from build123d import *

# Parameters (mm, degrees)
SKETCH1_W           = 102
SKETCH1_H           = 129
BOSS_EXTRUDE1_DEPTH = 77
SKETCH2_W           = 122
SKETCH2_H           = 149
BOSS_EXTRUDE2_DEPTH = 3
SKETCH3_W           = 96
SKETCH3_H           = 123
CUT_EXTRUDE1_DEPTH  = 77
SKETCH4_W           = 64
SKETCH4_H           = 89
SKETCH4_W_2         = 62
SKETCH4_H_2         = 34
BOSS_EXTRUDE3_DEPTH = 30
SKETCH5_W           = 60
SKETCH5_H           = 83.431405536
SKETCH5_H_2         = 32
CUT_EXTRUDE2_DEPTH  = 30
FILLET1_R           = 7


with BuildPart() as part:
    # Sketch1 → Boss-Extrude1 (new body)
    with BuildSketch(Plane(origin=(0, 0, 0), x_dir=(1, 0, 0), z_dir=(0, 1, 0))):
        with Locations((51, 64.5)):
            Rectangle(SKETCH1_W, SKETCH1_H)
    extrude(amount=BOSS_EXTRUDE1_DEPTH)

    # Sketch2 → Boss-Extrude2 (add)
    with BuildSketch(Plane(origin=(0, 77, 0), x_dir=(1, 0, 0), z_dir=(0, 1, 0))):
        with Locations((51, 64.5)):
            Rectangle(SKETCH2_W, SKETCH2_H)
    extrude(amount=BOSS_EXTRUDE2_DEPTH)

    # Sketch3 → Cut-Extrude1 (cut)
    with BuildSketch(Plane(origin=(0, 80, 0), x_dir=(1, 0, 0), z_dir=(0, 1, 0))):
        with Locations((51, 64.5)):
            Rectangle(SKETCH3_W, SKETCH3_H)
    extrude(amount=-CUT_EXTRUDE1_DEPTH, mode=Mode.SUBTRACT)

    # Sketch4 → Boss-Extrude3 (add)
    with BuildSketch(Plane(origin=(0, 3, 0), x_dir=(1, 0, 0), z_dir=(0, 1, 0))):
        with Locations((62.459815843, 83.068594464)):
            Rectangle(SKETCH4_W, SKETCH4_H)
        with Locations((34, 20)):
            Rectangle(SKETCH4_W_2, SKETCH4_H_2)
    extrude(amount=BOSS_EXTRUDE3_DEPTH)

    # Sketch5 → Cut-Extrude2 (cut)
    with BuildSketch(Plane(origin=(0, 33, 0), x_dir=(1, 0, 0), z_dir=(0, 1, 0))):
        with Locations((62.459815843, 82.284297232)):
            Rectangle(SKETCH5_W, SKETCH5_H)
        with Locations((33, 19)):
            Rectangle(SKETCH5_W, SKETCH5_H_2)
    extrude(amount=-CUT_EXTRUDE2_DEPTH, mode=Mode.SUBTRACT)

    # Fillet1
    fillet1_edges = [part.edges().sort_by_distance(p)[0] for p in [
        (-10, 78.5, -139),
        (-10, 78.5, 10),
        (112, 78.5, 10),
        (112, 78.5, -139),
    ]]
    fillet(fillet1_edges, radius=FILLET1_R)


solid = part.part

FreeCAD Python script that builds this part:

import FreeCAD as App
import Part
import Sketcher

V = App.Vector
Q = App.Units.Quantity


def edges_at(feature, points):
    """Names of the edges that pass closest to the given points."""
    edges = feature.Shape.Edges
    near = lambda p: min(range(len(edges)), key=lambda i: edges[i].distToShape(Part.Vertex(*p))[0])
    return sorted({f"Edge{near(p) + 1}" for p in points})

doc = App.newDocument("Part")
body = doc.addObject("PartDesign::Body", "Body")

sketch1 = body.newObject("Sketcher::SketchObject", "Sketch")
sketch1.AttachmentSupport = (doc.getObject("XZ_Plane"), [""])
sketch1.MapMode = "FlatFace"
sketch1.addGeometry([
    Part.LineSegment(V(0, -129, 0), V(0, 0, 0)),
    Part.LineSegment(V(0, 0, 0), V(102, 0, 0)),
    Part.LineSegment(V(102, 0, 0), V(102, -129, 0)),
    Part.LineSegment(V(102, -129, 0), V(0, -129, 0)),
], False)
sketch1.addConstraint([
    Sketcher.Constraint("Coincident", 0, 2, 1, 1),
    Sketcher.Constraint("Coincident", 1, 2, 2, 1),
    Sketcher.Constraint("Coincident", 2, 2, 3, 1),
    Sketcher.Constraint("Coincident", 3, 2, 0, 1),
    Sketcher.Constraint("Vertical", 0),
    Sketcher.Constraint("Horizontal", 1),
    Sketcher.Constraint("Vertical", 2),
    Sketcher.Constraint("Horizontal", 3),
    Sketcher.Constraint("Coincident", 0, 2, -1, 1),
    Sketcher.Constraint("DistanceX", 1, 1, 1, 2, Q("102 mm")),
    Sketcher.Constraint("DistanceY", 0, 1, 0, 2, Q("129 mm")),
])
pad1 = body.newObject("PartDesign::Pad", "Pad")
pad1.Profile = sketch1
pad1.Length = 77
pad1.Reversed = True

sketch2 = body.newObject("Sketcher::SketchObject", "Sketch001")
sketch2.AttachmentSupport = (doc.getObject("XZ_Plane"), [""])
sketch2.MapMode = "FlatFace"
sketch2.AttachmentOffset = App.Placement(V(0, 0, -77), App.Rotation())
sketch2.addGeometry([
    Part.LineSegment(V(-10, -139, 0), V(-10, 10, 0)),
    Part.LineSegment(V(-10, 10, 0), V(112, 10, 0)),
    Part.LineSegment(V(112, 10, 0), V(112, -139, 0)),
    Part.LineSegment(V(112, -139, 0), V(-10, -139, 0)),
], False)
sketch2.addConstraint([
    Sketcher.Constraint("Coincident", 0, 2, 1, 1),
    Sketcher.Constraint("Coincident", 1, 2, 2, 1),
    Sketcher.Constraint("Coincident", 2, 2, 3, 1),
    Sketcher.Constraint("Coincident", 3, 2, 0, 1),
    Sketcher.Constraint("Vertical", 0),
    Sketcher.Constraint("Horizontal", 1),
    Sketcher.Constraint("Vertical", 2),
    Sketcher.Constraint("Horizontal", 3),
    Sketcher.Constraint("DistanceX", 1, 1, 1, 2, Q("122 mm")),
    Sketcher.Constraint("DistanceY", 0, 1, 0, 2, Q("149 mm")),
    Sketcher.Constraint("DistanceX", 0, 2, -1, 1, Q("10 mm")),
    Sketcher.Constraint("DistanceY", -1, 1, 0, 2, Q("10 mm")),
])
pad2 = body.newObject("PartDesign::Pad", "Pad001")
pad2.Profile = sketch2
pad2.Length = 3
pad2.Reversed = True

sketch3 = body.newObject("Sketcher::SketchObject", "Sketch002")
sketch3.AttachmentSupport = (doc.getObject("XZ_Plane"), [""])
sketch3.MapMode = "FlatFace"
sketch3.AttachmentOffset = App.Placement(V(0, 0, -80), App.Rotation())
sketch3.addGeometry([
    Part.LineSegment(V(3, -126, 0), V(3, -3, 0)),
    Part.LineSegment(V(3, -3, 0), V(99, -3, 0)),
    Part.LineSegment(V(99, -3, 0), V(99, -126, 0)),
    Part.LineSegment(V(99, -126, 0), V(3, -126, 0)),
], False)
sketch3.addConstraint([
    Sketcher.Constraint("Coincident", 0, 2, 1, 1),
    Sketcher.Constraint("Coincident", 1, 2, 2, 1),
    Sketcher.Constraint("Coincident", 2, 2, 3, 1),
    Sketcher.Constraint("Coincident", 3, 2, 0, 1),
    Sketcher.Constraint("Vertical", 0),
    Sketcher.Constraint("Horizontal", 1),
    Sketcher.Constraint("Vertical", 2),
    Sketcher.Constraint("Horizontal", 3),
    Sketcher.Constraint("DistanceX", 1, 1, 1, 2, Q("96 mm")),
    Sketcher.Constraint("DistanceY", 0, 1, 0, 2, Q("123 mm")),
    Sketcher.Constraint("DistanceX", -1, 1, 0, 2, Q("3 mm")),
    Sketcher.Constraint("DistanceY", 0, 2, -1, 1, Q("3 mm")),
])
pocket1 = body.newObject("PartDesign::Pocket", "Pocket")
pocket1.Profile = sketch3
pocket1.Length = 77
pocket1.Reversed = True

sketch4 = body.newObject("Sketcher::SketchObject", "Sketch003")
sketch4.AttachmentSupport = (doc.getObject("XZ_Plane"), [""])
sketch4.MapMode = "FlatFace"
sketch4.AttachmentOffset = App.Placement(V(0, 0, -3), App.Rotation())
sketch4.addGeometry([
    Part.LineSegment(V(30, -128, 0), V(30, -39, 0)),
    Part.LineSegment(V(30, -39, 0), V(94, -39, 0)),
    Part.LineSegment(V(94, -39, 0), V(94, -128, 0)),
    Part.LineSegment(V(94, -128, 0), V(30, -128, 0)),
    Part.LineSegment(V(3, -37, 0), V(3, -3, 0)),
    Part.LineSegment(V(3, -3, 0), V(65, -3, 0)),
    Part.LineSegment(V(65, -3, 0), V(65, -37, 0)),
    Part.LineSegment(V(65, -37, 0), V(3, -37, 0)),
], False)
sketch4.addConstraint([
    Sketcher.Constraint("Coincident", 0, 2, 1, 1),
    Sketcher.Constraint("Coincident", 1, 2, 2, 1),
    Sketcher.Constraint("Coincident", 2, 2, 3, 1),
    Sketcher.Constraint("Coincident", 3, 2, 0, 1),
    Sketcher.Constraint("Coincident", 4, 2, 5, 1),
    Sketcher.Constraint("Coincident", 5, 2, 6, 1),
    Sketcher.Constraint("Coincident", 6, 2, 7, 1),
    Sketcher.Constraint("Coincident", 7, 2, 4, 1),
    Sketcher.Constraint("Vertical", 0),
    Sketcher.Constraint("Horizontal", 1),
    Sketcher.Constraint("Vertical", 2),
    Sketcher.Constraint("Horizontal", 3),
    Sketcher.Constraint("Vertical", 4),
    Sketcher.Constraint("Horizontal", 5),
    Sketcher.Constraint("Vertical", 6),
    Sketcher.Constraint("Horizontal", 7),
    Sketcher.Constraint("DistanceX", 1, 1, 1, 2, Q("64 mm")),
    Sketcher.Constraint("DistanceX", 5, 1, 5, 2, Q("62 mm")),
    Sketcher.Constraint("DistanceY", 0, 1, 0, 2, Q("89 mm")),
    Sketcher.Constraint("DistanceY", 4, 1, 4, 2, Q("34 mm")),
    Sketcher.Constraint("DistanceX", -1, 1, 4, 2, Q("3 mm")),
    Sketcher.Constraint("DistanceY", 4, 2, -1, 1, Q("3 mm")),
    Sketcher.Constraint("DistanceX", -1, 1, 0, 2, Q("30.459816 mm")),
    Sketcher.Constraint("DistanceY", 0, 2, -1, 1, Q("38.568594 mm")),
])
pad3 = body.newObject("PartDesign::Pad", "Pad002")
pad3.Profile = sketch4
pad3.Length = 30
pad3.Reversed = True

sketch5 = body.newObject("Sketcher::SketchObject", "Sketch004")
sketch5.AttachmentSupport = (doc.getObject("XZ_Plane"), [""])
sketch5.MapMode = "FlatFace"
sketch5.AttachmentOffset = App.Placement(V(0, 0, -33), App.Rotation())
sketch5.addGeometry([
    Part.LineSegment(V(32, -124, 0), V(32, -41, 0)),
    Part.LineSegment(V(32, -41, 0), V(92, -41, 0)),
    Part.LineSegment(V(92, -41, 0), V(92, -124, 0)),
    Part.LineSegment(V(92, -124, 0), V(32, -124, 0)),
    Part.LineSegment(V(3, -35, 0), V(3, -3, 0)),
    Part.LineSegment(V(3, -3, 0), V(63, -3, 0)),
    Part.LineSegment(V(63, -3, 0), V(63, -35, 0)),
    Part.LineSegment(V(63, -35, 0), V(3, -35, 0)),
], False)
sketch5.addConstraint([
    Sketcher.Constraint("Coincident", 0, 2, 1, 1),
    Sketcher.Constraint("Coincident", 1, 2, 2, 1),
    Sketcher.Constraint("Coincident", 2, 2, 3, 1),
    Sketcher.Constraint("Coincident", 3, 2, 0, 1),
    Sketcher.Constraint("Coincident", 4, 2, 5, 1),
    Sketcher.Constraint("Coincident", 5, 2, 6, 1),
    Sketcher.Constraint("Coincident", 6, 2, 7, 1),
    Sketcher.Constraint("Coincident", 7, 2, 4, 1),
    Sketcher.Constraint("Vertical", 0),
    Sketcher.Constraint("Horizontal", 1),
    Sketcher.Constraint("Vertical", 2),
    Sketcher.Constraint("Horizontal", 3),
    Sketcher.Constraint("Vertical", 4),
    Sketcher.Constraint("Horizontal", 5),
    Sketcher.Constraint("Vertical", 6),
    Sketcher.Constraint("Horizontal", 7),
    Sketcher.Constraint("Equal", 3, 5),
    Sketcher.Constraint("DistanceX", 1, 1, 1, 2, Q("60 mm")),
    Sketcher.Constraint("DistanceY", 4, 1, 4, 2, Q("32 mm")),
    Sketcher.Constraint("DistanceY", 2, 2, -1, 1, Q("124 mm")),
    Sketcher.Constraint("DistanceX", -1, 1, 4, 2, Q("3 mm")),
    Sketcher.Constraint("DistanceY", 4, 2, -1, 1, Q("3 mm")),
    Sketcher.Constraint("DistanceY", 0, 1, 0, 2, Q("83.431406 mm")),
    Sketcher.Constraint("DistanceX", -1, 1, 0, 2, Q("32.459816 mm")),
])
pocket2 = body.newObject("PartDesign::Pocket", "Pocket001")
pocket2.Profile = sketch5
pocket2.Length = 30
pocket2.Reversed = True
doc.recompute()

fillet = body.newObject("PartDesign::Fillet", "Fillet")
fillet.Base = (pocket2, edges_at(pocket2, [
    (-10, 78.5, -139),
    (-10, 78.5, 10),
    (112, 78.5, 10),
    (112, 78.5, -139),
]))
fillet.Radius = 7

doc.recompute()
